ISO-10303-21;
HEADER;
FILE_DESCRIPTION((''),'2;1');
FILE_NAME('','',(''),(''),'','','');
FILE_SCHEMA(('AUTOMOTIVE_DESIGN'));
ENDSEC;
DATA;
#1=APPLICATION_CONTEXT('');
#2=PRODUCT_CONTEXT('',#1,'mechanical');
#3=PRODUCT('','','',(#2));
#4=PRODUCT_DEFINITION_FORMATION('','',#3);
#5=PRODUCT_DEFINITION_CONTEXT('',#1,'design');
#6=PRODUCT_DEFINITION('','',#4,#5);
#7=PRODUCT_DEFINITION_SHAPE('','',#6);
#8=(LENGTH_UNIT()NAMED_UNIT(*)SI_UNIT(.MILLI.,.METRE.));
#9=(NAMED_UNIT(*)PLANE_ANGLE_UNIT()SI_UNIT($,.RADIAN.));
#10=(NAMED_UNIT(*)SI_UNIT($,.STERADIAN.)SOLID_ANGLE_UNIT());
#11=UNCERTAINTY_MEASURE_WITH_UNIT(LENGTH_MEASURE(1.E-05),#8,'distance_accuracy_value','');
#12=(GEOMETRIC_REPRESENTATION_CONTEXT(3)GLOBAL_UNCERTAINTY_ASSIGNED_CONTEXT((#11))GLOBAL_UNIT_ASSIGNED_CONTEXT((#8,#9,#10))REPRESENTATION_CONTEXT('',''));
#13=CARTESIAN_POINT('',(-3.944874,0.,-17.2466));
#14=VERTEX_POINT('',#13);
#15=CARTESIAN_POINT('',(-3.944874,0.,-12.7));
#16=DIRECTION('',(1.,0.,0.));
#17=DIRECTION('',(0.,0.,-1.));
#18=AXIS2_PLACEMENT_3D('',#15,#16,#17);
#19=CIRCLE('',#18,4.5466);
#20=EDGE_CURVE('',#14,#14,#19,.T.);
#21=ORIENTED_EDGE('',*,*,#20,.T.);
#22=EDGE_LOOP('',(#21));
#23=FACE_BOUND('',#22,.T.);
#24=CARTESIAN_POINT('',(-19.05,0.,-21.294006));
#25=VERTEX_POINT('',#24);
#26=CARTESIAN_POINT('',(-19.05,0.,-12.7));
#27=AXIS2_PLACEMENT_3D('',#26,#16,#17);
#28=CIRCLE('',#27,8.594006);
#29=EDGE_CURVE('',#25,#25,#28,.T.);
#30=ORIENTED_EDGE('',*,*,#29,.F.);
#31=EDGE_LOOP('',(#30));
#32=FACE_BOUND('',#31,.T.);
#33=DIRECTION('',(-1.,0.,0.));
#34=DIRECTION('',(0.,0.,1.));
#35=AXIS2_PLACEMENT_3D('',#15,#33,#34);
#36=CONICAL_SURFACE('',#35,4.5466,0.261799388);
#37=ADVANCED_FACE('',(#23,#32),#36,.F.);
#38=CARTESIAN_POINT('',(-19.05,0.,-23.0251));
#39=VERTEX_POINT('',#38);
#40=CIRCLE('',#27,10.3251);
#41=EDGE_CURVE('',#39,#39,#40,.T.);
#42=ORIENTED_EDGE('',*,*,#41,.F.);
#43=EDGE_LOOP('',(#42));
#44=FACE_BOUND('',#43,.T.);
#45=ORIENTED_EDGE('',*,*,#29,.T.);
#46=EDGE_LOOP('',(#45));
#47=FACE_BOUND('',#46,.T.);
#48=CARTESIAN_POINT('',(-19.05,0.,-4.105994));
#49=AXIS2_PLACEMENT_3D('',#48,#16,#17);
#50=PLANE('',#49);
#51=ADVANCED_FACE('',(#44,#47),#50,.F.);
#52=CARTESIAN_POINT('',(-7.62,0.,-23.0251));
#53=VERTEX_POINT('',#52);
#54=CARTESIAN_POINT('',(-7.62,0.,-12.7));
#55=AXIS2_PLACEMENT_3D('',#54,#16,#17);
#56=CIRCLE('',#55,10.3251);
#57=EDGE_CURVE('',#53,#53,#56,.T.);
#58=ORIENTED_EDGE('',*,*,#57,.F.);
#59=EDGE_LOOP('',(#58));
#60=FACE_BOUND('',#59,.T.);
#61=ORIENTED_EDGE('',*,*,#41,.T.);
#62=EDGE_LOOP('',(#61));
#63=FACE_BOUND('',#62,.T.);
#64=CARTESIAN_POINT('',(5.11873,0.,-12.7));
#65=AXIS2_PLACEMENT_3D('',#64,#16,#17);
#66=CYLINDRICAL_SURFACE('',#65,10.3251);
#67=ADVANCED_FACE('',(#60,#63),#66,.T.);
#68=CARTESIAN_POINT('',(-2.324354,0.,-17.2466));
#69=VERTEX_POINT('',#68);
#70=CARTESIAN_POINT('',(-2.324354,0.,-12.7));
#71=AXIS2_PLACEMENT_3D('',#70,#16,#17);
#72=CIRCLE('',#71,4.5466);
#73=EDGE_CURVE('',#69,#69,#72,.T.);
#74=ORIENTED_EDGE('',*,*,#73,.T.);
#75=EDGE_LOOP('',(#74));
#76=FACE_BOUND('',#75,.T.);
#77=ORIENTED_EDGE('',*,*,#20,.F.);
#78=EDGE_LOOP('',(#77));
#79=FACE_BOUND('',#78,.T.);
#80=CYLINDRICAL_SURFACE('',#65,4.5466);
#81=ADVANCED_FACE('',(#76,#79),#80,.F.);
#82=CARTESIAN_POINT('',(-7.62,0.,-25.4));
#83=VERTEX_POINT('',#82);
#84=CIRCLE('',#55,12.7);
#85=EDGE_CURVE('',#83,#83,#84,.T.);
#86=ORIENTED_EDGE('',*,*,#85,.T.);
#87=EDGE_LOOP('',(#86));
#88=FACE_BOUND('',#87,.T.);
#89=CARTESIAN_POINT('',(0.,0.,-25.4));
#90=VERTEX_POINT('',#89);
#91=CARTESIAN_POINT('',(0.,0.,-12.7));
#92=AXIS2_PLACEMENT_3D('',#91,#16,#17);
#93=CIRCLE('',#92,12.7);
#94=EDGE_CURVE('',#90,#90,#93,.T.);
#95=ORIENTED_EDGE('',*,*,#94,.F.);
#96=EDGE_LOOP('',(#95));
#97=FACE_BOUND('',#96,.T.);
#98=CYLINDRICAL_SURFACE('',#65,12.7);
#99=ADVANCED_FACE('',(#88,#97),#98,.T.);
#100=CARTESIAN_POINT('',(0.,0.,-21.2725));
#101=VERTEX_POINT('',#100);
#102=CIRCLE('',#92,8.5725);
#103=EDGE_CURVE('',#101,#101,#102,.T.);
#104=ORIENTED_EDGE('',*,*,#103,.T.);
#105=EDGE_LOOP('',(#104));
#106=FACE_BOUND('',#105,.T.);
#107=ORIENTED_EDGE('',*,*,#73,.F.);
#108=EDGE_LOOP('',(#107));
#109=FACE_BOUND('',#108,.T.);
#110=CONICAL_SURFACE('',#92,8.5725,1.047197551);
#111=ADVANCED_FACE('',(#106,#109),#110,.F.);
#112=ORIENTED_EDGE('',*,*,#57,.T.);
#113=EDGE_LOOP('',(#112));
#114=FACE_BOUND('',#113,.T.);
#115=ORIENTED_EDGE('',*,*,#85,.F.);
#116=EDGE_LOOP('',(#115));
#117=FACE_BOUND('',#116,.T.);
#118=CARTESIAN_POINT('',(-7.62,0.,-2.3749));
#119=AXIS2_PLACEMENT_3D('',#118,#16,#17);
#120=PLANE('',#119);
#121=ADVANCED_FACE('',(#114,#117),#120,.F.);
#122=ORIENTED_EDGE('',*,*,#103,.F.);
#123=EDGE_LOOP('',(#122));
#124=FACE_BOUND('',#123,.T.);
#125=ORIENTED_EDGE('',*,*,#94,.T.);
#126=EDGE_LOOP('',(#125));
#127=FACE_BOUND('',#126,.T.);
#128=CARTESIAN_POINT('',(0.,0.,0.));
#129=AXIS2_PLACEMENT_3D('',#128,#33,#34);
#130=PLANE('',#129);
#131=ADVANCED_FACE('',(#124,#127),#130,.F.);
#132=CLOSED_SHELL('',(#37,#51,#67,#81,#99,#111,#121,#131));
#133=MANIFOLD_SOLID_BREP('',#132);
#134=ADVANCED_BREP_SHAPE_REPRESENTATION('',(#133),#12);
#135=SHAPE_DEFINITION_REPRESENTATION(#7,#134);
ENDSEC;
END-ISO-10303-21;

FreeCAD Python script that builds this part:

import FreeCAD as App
import Part
import Sketcher
from FreeCAD import Vector
Q = App.Units.Quantity

doc = App.newDocument("Part")
body = doc.addObject("PartDesign::Body", "Body")

# Sketch on XZ plane
sketch1 = body.newObject("Sketcher::SketchObject", "Sketch")
sketch1.AttachmentSupport = (doc.getObject("XZ_Plane"), [""])
sketch1.MapMode = "FlatFace"
sketch1.addGeometry([
    Part.LineSegment(Vector(0, 0, 0), Vector(0, -4.1, 0)),  # 0
    Part.LineSegment(Vector(0, -4.1, 0), Vector(-2.3, -8.2, 0)),  # 1
    Part.LineSegment(Vector(-2.3, -8.2, 0), Vector(-3.9, -8.2, 0)),  # 2
    Part.LineSegment(Vector(-3.9, -8.2, 0), Vector(-19.1, -4.1, 0)),  # 3
    Part.LineSegment(Vector(-19.1, -4.1, 0), Vector(-19.1, -2.4, 0)),  # 4
    Part.LineSegment(Vector(-19.1, -2.4, 0), Vector(-7.6, -2.4, 0)),  # 5
    Part.LineSegment(Vector(-7.6, -2.4, 0), Vector(-7.6, 0, 0)),  # 6
    Part.LineSegment(Vector(-7.6, 0, 0), Vector(0, 0, 0)),  # 7
], False)
sketch1.addGeometry(Part.LineSegment(Vector(0, -12.7, 0), Vector(-19.1, -12.7, 0)), True)  # axis
sketch1.addConstraint([
    Sketcher.Constraint("Coincident", 0, 2, 1, 1),
    Sketcher.Constraint("Coincident", 1, 2, 2, 1),
    Sketcher.Constraint("Coincident", 2, 2, 3, 1),
    Sketcher.Constraint("Coincident", 3, 2, 4, 1),
    Sketcher.Constraint("Coincident", 4, 2, 5, 1),
    Sketcher.Constraint("Coincident", 5, 2, 6, 1),
    Sketcher.Constraint("Coincident", 6, 2, 7, 1),
    Sketcher.Constraint("Coincident", 7, 2, 0, 1),
    Sketcher.Constraint("Vertical", 0),
    Sketcher.Constraint("Horizontal", 2),
    Sketcher.Constraint("Vertical", 4),
    Sketcher.Constraint("Horizontal", 5),
    Sketcher.Constraint("Vertical", 6),
    Sketcher.Constraint("Horizontal", 7),
    Sketcher.Constraint("Horizontal", 8),
    Sketcher.Constraint("Coincident", 7, 2, -1, 1),
    Sketcher.Constraint("PointOnObject", 8, 1, -2),
    Sketcher.Constraint("Vertical", 4, 2, 8, 2),
    Sketcher.Constraint("DistanceX", 7, 1, 7, 2, Q("0.3 in")),
    Sketcher.Constraint("Angle", 1, Q("-120 deg")),
    Sketcher.Constraint("Angle", 3, Q("165 deg")),
    Sketcher.Constraint("DistanceX", 5, 1, 5, 2, Q("0.45 in")),
    Sketcher.Constraint("DistanceY", 8, 1, -1, 1, Q("0.5 in")),
    Sketcher.Constraint("DistanceX", 2, 2, 2, 1, Q("0.0638 in")),
    Sketcher.Constraint("DistanceY", 0, 2, 0, 1, Q("0.1625 in")),
    Sketcher.Constraint("DistanceY", 6, 1, 6, 2, Q("0.0935 in")),
    Sketcher.Constraint("DistanceY", 1, 2, -1, 1, Q("0.321 in")),
])
revolution = body.newObject("PartDesign::Revolution", "Revolution")
revolution.Profile = sketch1
revolution.ReferenceAxis = (sketch1, ["Axis0"])
revolution.Angle = 360

doc.recompute()
